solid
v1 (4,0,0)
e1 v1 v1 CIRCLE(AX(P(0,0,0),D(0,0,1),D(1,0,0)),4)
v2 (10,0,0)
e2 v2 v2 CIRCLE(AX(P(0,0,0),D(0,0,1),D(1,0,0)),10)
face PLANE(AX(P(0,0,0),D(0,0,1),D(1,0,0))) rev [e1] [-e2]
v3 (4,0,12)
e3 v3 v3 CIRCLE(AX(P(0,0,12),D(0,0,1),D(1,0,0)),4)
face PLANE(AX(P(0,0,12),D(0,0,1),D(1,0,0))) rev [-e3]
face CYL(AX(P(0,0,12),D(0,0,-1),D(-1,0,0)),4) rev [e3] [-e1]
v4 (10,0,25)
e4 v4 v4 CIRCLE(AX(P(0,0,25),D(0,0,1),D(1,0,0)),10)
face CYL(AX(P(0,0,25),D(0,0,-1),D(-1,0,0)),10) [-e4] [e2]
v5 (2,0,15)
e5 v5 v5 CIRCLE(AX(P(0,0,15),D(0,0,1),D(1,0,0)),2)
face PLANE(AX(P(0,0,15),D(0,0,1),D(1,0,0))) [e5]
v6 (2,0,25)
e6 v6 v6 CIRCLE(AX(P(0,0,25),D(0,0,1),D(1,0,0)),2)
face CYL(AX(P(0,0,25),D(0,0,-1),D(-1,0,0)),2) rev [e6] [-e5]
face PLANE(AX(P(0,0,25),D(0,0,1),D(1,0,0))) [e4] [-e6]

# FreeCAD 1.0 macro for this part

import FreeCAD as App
import Part
import Sketcher

V = App.Vector
Q = App.Units.Quantity

doc = App.newDocument("Part")
body = doc.addObject("PartDesign::Body", "Body")

sketch1 = doc.addObject("Sketcher::SketchObject", "Sketch")
body.addObject(sketch1)
sketch1.AttachmentSupport = (doc.XY_Plane, [""])
sketch1.MapMode = "FlatFace"
sketch1.addGeometry(Part.Circle(V(0, 0, 0), V(0, 0, 1), 10), False)
sketch1.addConstraint([
    Sketcher.Constraint("Coincident", 0, 3, -1, 1),
    Sketcher.Constraint("Diameter", 0, Q("20 mm")),
])
pad1 = doc.addObject("PartDesign::Pad", "Pad")
body.addObject(pad1)
pad1.Profile = sketch1
pad1.Length = 25

sketch2 = doc.addObject("Sketcher::SketchObject", "Sketch001")
body.addObject(sketch2)
sketch2.AttachmentSupport = (doc.XY_Plane, [""])
sketch2.MapMode = "FlatFace"
sketch2.addGeometry(Part.Circle(V(0, 0, 0), V(0, 0, 1), 4), False)
sketch2.addConstraint([
    Sketcher.Constraint("Coincident", 0, 3, -1, 1),
    Sketcher.Constraint("Diameter", 0, Q("8 mm")),
])
pocket1 = doc.addObject("PartDesign::Pocket", "Pocket")
body.addObject(pocket1)
pocket1.Profile = sketch2
pocket1.Length = 12
pocket1.Reversed = True

sketch3 = doc.addObject("Sketcher::SketchObject", "Sketch002")
body.addObject(sketch3)
sketch3.AttachmentSupport = (doc.XY_Plane, [""])
sketch3.MapMode = "FlatFace"
sketch3.AttachmentOffset = App.Placement(V(0, 0, 15), App.Rotation())
sketch3.addGeometry(Part.Circle(V(0, 0, 0), V(0, 0, 1), 2), False)
sketch3.addConstraint([
    Sketcher.Constraint("Coincident", 0, 3, -1, 1),
    Sketcher.Constraint("Diameter", 0, Q("4 mm")),
])
pocket2 = doc.addObject("PartDesign::Pocket", "Pocket001")
body.addObject(pocket2)
pocket2.Profile = sketch3
pocket2.Length = 10
pocket2.Reversed = True

doc.recompute()
